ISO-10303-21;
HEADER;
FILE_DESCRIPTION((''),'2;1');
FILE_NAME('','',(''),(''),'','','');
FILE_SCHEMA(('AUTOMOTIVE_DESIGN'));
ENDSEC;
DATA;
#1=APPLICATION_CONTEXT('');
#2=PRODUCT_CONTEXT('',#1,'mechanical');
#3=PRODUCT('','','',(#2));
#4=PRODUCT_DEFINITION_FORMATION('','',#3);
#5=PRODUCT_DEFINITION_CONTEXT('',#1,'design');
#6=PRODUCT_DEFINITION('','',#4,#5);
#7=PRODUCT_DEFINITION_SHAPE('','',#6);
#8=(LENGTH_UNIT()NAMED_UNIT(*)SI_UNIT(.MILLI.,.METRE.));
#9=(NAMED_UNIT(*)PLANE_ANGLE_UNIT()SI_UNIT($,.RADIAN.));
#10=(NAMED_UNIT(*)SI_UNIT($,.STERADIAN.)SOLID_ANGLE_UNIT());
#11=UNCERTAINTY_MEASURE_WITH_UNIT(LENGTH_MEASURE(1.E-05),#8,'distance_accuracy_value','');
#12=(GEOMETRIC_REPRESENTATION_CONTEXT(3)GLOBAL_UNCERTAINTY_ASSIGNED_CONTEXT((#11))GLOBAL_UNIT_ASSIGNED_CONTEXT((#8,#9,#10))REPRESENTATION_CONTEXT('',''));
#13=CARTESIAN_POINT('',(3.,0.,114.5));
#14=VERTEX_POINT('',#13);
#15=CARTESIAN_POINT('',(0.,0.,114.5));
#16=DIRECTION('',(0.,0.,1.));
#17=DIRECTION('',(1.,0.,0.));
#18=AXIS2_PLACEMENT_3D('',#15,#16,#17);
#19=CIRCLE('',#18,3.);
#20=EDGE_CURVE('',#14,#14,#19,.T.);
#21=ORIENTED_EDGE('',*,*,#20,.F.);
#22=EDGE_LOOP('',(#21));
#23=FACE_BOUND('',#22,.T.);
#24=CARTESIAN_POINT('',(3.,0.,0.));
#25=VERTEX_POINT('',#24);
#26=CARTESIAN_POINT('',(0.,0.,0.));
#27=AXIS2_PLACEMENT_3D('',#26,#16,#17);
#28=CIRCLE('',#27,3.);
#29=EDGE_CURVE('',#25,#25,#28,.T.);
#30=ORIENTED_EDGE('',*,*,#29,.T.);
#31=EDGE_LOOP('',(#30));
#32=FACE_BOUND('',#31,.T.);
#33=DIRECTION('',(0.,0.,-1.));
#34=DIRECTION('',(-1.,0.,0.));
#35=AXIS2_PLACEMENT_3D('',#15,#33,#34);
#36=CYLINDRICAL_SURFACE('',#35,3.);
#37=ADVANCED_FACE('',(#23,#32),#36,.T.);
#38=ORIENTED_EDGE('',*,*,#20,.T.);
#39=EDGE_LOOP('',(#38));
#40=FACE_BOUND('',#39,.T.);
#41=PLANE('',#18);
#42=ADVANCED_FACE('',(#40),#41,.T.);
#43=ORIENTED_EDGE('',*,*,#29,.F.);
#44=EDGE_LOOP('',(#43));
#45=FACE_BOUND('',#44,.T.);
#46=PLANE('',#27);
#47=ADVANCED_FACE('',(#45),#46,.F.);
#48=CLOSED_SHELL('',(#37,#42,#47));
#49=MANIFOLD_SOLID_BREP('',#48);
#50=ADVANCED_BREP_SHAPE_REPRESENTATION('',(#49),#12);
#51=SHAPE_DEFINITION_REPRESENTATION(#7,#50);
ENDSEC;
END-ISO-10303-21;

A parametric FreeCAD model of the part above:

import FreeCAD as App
import Part
import Sketcher

V = App.Vector

doc = App.newDocument("Part")
body = doc.addObject("PartDesign::Body", "Body")

# Sketch on XY plane
sketch1 = body.newObject("Sketcher::SketchObject", "Sketch")
sketch1.AttachmentSupport = (doc.getObject("XY_Plane"), [""])
sketch1.MapMode = "FlatFace"
sketch1.addGeometry(Part.Circle(V(0, 0, 0), V(0, 0, 1), 3), False)
sketch1.addConstraint([
    Sketcher.Constraint("Coincident", 0, 3, -1, 1),
    Sketcher.Constraint("Diameter", 0, 6.0),
])
pad1 = body.newObject("PartDesign::Pad", "Pad")
pad1.Profile = sketch1
pad1.Length = 114.5

doc.recompute()
